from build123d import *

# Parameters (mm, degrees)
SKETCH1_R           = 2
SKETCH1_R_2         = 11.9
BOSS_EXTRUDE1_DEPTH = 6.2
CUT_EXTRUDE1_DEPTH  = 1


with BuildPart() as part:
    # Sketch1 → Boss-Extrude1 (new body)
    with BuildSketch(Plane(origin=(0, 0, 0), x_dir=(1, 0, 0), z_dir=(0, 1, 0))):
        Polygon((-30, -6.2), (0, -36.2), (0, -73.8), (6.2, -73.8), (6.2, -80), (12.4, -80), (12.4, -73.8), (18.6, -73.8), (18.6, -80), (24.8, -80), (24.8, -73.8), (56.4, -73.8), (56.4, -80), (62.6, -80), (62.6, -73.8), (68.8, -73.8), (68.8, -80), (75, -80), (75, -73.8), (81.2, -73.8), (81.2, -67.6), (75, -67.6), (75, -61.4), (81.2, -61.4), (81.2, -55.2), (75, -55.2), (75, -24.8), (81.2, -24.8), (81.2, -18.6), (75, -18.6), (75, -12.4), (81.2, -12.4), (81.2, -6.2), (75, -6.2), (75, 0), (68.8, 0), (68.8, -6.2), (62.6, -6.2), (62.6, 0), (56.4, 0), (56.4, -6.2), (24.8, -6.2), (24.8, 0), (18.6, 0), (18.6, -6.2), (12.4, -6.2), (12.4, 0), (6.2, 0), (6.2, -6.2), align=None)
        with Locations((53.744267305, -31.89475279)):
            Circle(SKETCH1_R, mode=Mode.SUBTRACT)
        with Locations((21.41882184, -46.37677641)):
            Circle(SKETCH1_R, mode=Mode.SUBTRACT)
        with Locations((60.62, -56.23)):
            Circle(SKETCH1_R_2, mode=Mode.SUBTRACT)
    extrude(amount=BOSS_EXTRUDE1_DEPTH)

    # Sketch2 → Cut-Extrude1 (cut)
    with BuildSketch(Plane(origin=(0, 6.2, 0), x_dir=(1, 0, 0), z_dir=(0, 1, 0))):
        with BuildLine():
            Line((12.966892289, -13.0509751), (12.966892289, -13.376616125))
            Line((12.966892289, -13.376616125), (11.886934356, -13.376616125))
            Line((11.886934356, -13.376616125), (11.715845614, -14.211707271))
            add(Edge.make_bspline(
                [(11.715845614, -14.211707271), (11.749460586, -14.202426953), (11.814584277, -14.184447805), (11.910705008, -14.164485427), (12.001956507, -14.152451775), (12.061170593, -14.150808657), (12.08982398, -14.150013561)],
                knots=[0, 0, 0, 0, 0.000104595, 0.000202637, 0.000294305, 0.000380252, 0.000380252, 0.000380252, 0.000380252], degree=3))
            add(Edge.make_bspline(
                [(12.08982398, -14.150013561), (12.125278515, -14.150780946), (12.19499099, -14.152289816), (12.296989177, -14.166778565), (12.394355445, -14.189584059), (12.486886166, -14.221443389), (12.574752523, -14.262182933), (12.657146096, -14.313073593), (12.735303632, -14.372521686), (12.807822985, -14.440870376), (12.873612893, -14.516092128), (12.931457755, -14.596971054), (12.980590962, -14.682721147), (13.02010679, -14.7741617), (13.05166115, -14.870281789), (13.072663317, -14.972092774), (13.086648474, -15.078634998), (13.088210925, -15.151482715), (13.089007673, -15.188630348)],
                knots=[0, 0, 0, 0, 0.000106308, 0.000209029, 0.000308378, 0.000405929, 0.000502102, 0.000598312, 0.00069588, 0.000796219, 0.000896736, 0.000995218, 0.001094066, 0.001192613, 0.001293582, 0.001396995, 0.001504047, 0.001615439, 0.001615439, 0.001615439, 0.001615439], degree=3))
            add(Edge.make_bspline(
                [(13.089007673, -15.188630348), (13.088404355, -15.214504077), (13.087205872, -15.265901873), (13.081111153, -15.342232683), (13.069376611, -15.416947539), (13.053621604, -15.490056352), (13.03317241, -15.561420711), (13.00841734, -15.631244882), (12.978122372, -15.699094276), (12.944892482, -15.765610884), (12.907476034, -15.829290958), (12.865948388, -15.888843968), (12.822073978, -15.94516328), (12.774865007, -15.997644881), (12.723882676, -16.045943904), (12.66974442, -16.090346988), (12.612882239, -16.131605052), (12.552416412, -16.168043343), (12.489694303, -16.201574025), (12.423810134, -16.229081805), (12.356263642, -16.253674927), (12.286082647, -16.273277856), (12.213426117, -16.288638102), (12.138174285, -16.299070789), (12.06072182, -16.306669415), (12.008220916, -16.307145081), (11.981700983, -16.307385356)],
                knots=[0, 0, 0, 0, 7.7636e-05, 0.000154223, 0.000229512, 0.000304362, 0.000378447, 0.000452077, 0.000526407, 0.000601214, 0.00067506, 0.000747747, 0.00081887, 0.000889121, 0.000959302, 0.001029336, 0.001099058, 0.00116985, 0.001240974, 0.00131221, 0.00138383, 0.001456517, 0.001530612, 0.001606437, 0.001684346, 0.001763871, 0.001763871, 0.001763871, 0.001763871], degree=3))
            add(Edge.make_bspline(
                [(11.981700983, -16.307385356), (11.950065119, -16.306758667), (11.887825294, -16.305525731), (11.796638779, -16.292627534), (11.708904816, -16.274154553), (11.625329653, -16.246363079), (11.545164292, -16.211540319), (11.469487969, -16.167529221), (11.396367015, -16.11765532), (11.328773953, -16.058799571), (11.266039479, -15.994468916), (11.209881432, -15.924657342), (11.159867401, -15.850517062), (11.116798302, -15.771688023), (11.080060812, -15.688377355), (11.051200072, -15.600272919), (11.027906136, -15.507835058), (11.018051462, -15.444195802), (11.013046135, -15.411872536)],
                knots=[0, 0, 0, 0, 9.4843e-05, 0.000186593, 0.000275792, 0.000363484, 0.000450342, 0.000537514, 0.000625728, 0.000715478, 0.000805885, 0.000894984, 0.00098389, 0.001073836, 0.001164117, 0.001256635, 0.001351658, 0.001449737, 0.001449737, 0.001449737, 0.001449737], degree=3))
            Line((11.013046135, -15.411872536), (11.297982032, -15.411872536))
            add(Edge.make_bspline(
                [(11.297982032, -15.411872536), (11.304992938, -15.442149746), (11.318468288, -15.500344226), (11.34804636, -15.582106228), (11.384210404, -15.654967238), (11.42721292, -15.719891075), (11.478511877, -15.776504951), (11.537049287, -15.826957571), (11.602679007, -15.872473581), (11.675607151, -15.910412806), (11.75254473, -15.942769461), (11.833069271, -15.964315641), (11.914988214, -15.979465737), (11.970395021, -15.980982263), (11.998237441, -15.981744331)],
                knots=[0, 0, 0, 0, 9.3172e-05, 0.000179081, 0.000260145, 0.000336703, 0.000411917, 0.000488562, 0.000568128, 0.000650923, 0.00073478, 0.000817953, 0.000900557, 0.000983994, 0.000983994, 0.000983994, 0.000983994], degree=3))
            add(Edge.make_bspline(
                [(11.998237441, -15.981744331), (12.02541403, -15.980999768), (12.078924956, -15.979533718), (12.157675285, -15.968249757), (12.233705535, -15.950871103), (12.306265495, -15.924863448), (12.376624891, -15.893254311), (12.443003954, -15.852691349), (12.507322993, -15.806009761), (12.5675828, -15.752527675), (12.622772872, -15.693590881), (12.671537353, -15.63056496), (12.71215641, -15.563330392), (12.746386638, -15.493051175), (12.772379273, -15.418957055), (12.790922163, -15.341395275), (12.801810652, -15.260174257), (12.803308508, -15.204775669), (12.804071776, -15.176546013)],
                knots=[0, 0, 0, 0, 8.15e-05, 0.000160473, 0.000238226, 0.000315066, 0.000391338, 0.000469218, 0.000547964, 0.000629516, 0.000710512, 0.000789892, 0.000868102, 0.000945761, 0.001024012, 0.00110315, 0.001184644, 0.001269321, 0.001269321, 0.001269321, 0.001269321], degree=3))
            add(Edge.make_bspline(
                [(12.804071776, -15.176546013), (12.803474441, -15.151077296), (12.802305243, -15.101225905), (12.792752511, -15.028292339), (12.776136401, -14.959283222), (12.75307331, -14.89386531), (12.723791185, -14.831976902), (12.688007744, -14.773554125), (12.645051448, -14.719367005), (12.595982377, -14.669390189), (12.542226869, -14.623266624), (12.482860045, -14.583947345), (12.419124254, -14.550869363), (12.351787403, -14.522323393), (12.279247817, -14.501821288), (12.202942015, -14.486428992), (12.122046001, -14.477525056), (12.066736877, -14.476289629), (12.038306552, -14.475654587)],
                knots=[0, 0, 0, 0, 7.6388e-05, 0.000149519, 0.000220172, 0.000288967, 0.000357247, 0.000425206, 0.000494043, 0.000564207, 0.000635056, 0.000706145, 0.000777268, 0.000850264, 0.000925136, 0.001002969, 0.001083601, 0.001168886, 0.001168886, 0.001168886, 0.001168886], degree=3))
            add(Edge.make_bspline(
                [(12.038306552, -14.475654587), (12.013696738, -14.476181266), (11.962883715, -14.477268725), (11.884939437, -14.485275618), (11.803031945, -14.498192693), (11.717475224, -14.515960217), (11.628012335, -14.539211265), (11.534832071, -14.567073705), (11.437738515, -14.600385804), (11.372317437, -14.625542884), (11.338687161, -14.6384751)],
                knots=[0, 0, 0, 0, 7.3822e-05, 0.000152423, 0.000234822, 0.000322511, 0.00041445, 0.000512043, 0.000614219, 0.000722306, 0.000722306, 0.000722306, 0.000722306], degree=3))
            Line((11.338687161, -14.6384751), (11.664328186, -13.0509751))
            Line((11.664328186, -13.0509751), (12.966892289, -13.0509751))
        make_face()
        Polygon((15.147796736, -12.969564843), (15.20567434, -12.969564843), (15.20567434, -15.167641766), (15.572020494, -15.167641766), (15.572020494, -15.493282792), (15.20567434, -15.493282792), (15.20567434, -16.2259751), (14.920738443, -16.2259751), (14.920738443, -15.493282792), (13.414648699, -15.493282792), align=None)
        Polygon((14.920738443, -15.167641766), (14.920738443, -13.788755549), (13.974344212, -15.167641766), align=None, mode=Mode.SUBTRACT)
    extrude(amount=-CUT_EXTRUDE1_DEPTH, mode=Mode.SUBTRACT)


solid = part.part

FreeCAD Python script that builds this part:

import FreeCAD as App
import Part
import Sketcher

V = App.Vector
Q = App.Units.Quantity


def add_polygon(sketch, points):
    """Adds a closed chain of lines whose ends are joined by coincident constraints."""
    first, n = sketch.GeometryCount, len(points)
    for a, b in zip(points, points[1:] + points[:1]):
        sketch.addGeometry(Part.LineSegment(App.Vector(*a, 0), App.Vector(*b, 0)), False)
    for i in range(n):
        sketch.addConstraint(Sketcher.Constraint("Coincident", first + i, 2, first + (i + 1) % n, 1))

doc = App.newDocument("Part")
body = doc.addObject("PartDesign::Body", "Body")

# Sketch on XZ plane
sketch1 = body.newObject("Sketcher::SketchObject", "Sketch")
sketch1.AttachmentSupport = (doc.getObject("XZ_Plane"), [""])
sketch1.MapMode = "FlatFace"
add_polygon(sketch1, [(-30, 6.2), (0, 36.2), (0, 73.8), (6.2, 73.8), (6.2, 80), (12.4, 80), (12.4, 73.8), (18.6, 73.8), (18.6, 80), (24.8, 80), (24.8, 73.8), (56.4, 73.8), (56.4, 80), (62.6, 80), (62.6, 73.8), (68.8, 73.8), (68.8, 80), (75, 80), (75, 73.8), (81.2, 73.8), (81.2, 67.6), (75, 67.6), (75, 61.4), (81.2, 61.4), (81.2, 55.2), (75, 55.2), (75, 24.8), (81.2, 24.8), (81.2, 18.6), (75, 18.6), (75, 12.4), (81.2, 12.4), (81.2, 6.2), (75, 6.2), (75, 0), (68.8, 0), (68.8, 6.2), (62.6, 6.2), (62.6, 0), (56.4, 0), (56.4, 6.2), (24.8, 6.2), (24.8, 0), (18.6, 0), (18.6, 6.2), (12.4, 6.2), (12.4, 0), (6.2, 0), (6.2, 6.2)])  # lines 0-48
sketch1.addGeometry(Part.Circle(V(60.6, 56.2, 0), V(0, 0, 1), 11.9), False)  # 49
sketch1.addGeometry(Part.Circle(V(21.4, 46.4, 0), V(0, 0, 1), 2), False)  # 50
sketch1.addGeometry(Part.Circle(V(53.7, 31.9, 0), V(0, 0, 1), 2), False)  # 51
sketch1.addConstraint(Sketcher.Constraint("Vertical", 1))
sketch1.addConstraint(Sketcher.Constraint("Horizontal", 2))
sketch1.addConstraint(Sketcher.Constraint("Vertical", 3))
sketch1.addConstraint(Sketcher.Constraint("Horizontal", 4))
sketch1.addConstraint(Sketcher.Constraint("Vertical", 5))
sketch1.addConstraint(Sketcher.Constraint("Horizontal", 6))
sketch1.addConstraint(Sketcher.Constraint("Vertical", 7))
sketch1.addConstraint(Sketcher.Constraint("Horizontal", 8))
sketch1.addConstraint(Sketcher.Constraint("Vertical", 9))
sketch1.addConstraint(Sketcher.Constraint("Horizontal", 10))
sketch1.addConstraint(Sketcher.Constraint("Vertical", 11))
sketch1.addConstraint(Sketcher.Constraint("Horizontal", 12))
sketch1.addConstraint(Sketcher.Constraint("Vertical", 13))
sketch1.addConstraint(Sketcher.Constraint("Horizontal", 14))
sketch1.addConstraint(Sketcher.Constraint("Vertical", 15))
sketch1.addConstraint(Sketcher.Constraint("Horizontal", 16))
sketch1.addConstraint(Sketcher.Constraint("Vertical", 17))
sketch1.addConstraint(Sketcher.Constraint("Horizontal", 18))
sketch1.addConstraint(Sketcher.Constraint("Vertical", 19))
sketch1.addConstraint(Sketcher.Constraint("Horizontal", 20))
sketch1.addConstraint(Sketcher.Constraint("Vertical", 21))
sketch1.addConstraint(Sketcher.Constraint("Horizontal", 22))
sketch1.addConstraint(Sketcher.Constraint("Vertical", 23))
sketch1.addConstraint(Sketcher.Constraint("Horizontal", 24))
sketch1.addConstraint(Sketcher.Constraint("Vertical", 25))
sketch1.addConstraint(Sketcher.Constraint("Horizontal", 26))
sketch1.addConstraint(Sketcher.Constraint("Vertical", 27))
sketch1.addConstraint(Sketcher.Constraint("Horizontal", 28))
sketch1.addConstraint(Sketcher.Constraint("Vertical", 29))
sketch1.addConstraint(Sketcher.Constraint("Horizontal", 30))
sketch1.addConstraint(Sketcher.Constraint("Vertical", 31))
sketch1.addConstraint(Sketcher.Constraint("Horizontal", 32))
sketch1.addConstraint(Sketcher.Constraint("Vertical", 33))
sketch1.addConstraint(Sketcher.Constraint("Horizontal", 34))
sketch1.addConstraint(Sketcher.Constraint("Vertical", 35))
sketch1.addConstraint(Sketcher.Constraint("Horizontal", 36))
sketch1.addConstraint(Sketcher.Constraint("Vertical", 37))
sketch1.addConstraint(Sketcher.Constraint("Horizontal", 38))
sketch1.addConstraint(Sketcher.Constraint("Vertical", 39))
sketch1.addConstraint(Sketcher.Constraint("Horizontal", 40))
sketch1.addConstraint(Sketcher.Constraint("Vertical", 41))
sketch1.addConstraint(Sketcher.Constraint("Horizontal", 42))
sketch1.addConstraint(Sketcher.Constraint("Vertical", 43))
sketch1.addConstraint(Sketcher.Constraint("Horizontal", 44))
sketch1.addConstraint(Sketcher.Constraint("Vertical", 45))
sketch1.addConstraint(Sketcher.Constraint("Horizontal", 46))
sketch1.addConstraint(Sketcher.Constraint("Vertical", 47))
sketch1.addConstraint(Sketcher.Constraint("Horizontal", 48))
sketch1.addConstraint(Sketcher.Constraint("Equal", 50, 51))
sketch1.addConstraint(Sketcher.Constraint("PointOnObject", 0, 2, -2))
sketch1.addConstraint(Sketcher.Constraint("PointOnObject", 33, 2, -1))
sketch1.addConstraint(Sketcher.Constraint("PointOnObject", 37, 2, -1))
sketch1.addConstraint(Sketcher.Constraint("PointOnObject", 41, 2, -1))
sketch1.addConstraint(Sketcher.Constraint("PointOnObject", 45, 2, -1))
sketch1.addConstraint(Sketcher.Constraint("Horizontal", 2, 2, 5, 2))
sketch1.addConstraint(Sketcher.Constraint("Horizontal", 4, 2, 7, 2))
sketch1.addConstraint(Sketcher.Constraint("Horizontal", 6, 2, 9, 2))
sketch1.addConstraint(Sketcher.Constraint("Horizontal", 8, 2, 11, 2))
sketch1.addConstraint(Sketcher.Constraint("Horizontal", 10, 2, 13, 2))
sketch1.addConstraint(Sketcher.Constraint("Horizontal", 12, 2, 15, 2))
sketch1.addConstraint(Sketcher.Constraint("Horizontal", 14, 2, 17, 2))
sketch1.addConstraint(Sketcher.Constraint("Horizontal", 32, 2, 35, 2))
sketch1.addConstraint(Sketcher.Constraint("Horizontal", 36, 2, 39, 2))
sketch1.addConstraint(Sketcher.Constraint("Horizontal", 40, 2, 43, 2))
sketch1.addConstraint(Sketcher.Constraint("Horizontal", 44, 2, 47, 2))
sketch1.addConstraint(Sketcher.Constraint("Vertical", 17, 2, 20, 2))
sketch1.addConstraint(Sketcher.Constraint("Vertical", 19, 2, 22, 2))
sketch1.addConstraint(Sketcher.Constraint("Vertical", 21, 2, 24, 2))
sketch1.addConstraint(Sketcher.Constraint("Vertical", 23, 2, 26, 2))
sketch1.addConstraint(Sketcher.Constraint("Vertical", 25, 2, 28, 2))
sketch1.addConstraint(Sketcher.Constraint("Vertical", 27, 2, 30, 2))
sketch1.addConstraint(Sketcher.Constraint("Vertical", 29, 2, 32, 2))
sketch1.addConstraint(Sketcher.Constraint("Vertical", 15, 2, 34, 2))
sketch1.addConstraint(Sketcher.Constraint("Vertical", 13, 2, 36, 2))
sketch1.addConstraint(Sketcher.Constraint("Vertical", 11, 2, 38, 2))
sketch1.addConstraint(Sketcher.Constraint("Vertical", 9, 2, 40, 2))
sketch1.addConstraint(Sketcher.Constraint("Vertical", 7, 2, 42, 2))
sketch1.addConstraint(Sketcher.Constraint("Vertical", 5, 2, 44, 2))
sketch1.addConstraint(Sketcher.Constraint("Vertical", 3, 2, 46, 2))
sketch1.addConstraint(Sketcher.Constraint("Equal", 2, 4))
sketch1.addConstraint(Sketcher.Constraint("Equal", 4, 6))
sketch1.addConstraint(Sketcher.Constraint("Equal", 6, 8))
sketch1.addConstraint(Sketcher.Constraint("Equal", 8, 12))
sketch1.addConstraint(Sketcher.Constraint("Equal", 12, 14))
sketch1.addConstraint(Sketcher.Constraint("Equal", 14, 16))
sketch1.addConstraint(Sketcher.Constraint("Equal", 16, 18))
sketch1.addConstraint(Sketcher.Constraint("Equal", 46, 3))
sketch1.addConstraint(Sketcher.Constraint("Equal", 17, 19))
sketch1.addConstraint(Sketcher.Constraint("Equal", 19, 21))
sketch1.addConstraint(Sketcher.Constraint("Equal", 21, 23))
sketch1.addConstraint(Sketcher.Constraint("Equal", 23, 27))
sketch1.addConstraint(Sketcher.Constraint("Equal", 27, 29))
sketch1.addConstraint(Sketcher.Constraint("Equal", 29, 31))
sketch1.addConstraint(Sketcher.Constraint("Equal", 31, 33))
sketch1.addConstraint(Sketcher.Constraint("Diameter", 50, 4.0))
sketch1.addConstraint(Sketcher.Constraint("Diameter", 49, 23.8))
sketch1.addConstraint(Sketcher.Constraint("Angle", 0, Q("45 deg")))
sketch1.addConstraint(Sketcher.Constraint("DistanceX", 2, 1, 2, 2, 6.2))
sketch1.addConstraint(Sketcher.Constraint("DistanceX", 10, 1, 10, 2, 31.6))
sketch1.addConstraint(Sketcher.Constraint("DistanceX", 48, 2, 48, 1, 36.2))
sketch1.addConstraint(Sketcher.Constraint("DistanceY", 1, 1, 1, 2, 37.6))
sketch1.addConstraint(Sketcher.Constraint("DistanceX", -1, 1, 49, 3, 60.62))
sketch1.addConstraint(Sketcher.Constraint("DistanceY", -1, 1, 49, 3, 56.23))
sketch1.addConstraint(Sketcher.Constraint("DistanceX", -1, 1, 50, 3, 21.418822))
sketch1.addConstraint(Sketcher.Constraint("DistanceY", -1, 1, 50, 3, 46.376776))
sketch1.addConstraint(Sketcher.Constraint("DistanceX", -1, 1, 51, 3, 53.744267))
sketch1.addConstraint(Sketcher.Constraint("DistanceY", -1, 1, 51, 3, 31.894753))
pad1 = body.newObject("PartDesign::Pad", "Pad")
pad1.Profile = sketch1
pad1.Length = 6.2
pad1.Reversed = True

# Sketch on XZ plane
sketch2 = body.newObject("Sketcher::SketchObject", "Sketch001")
sketch2.AttachmentSupport = (doc.getObject("XZ_Plane"), [""])
sketch2.MapMode = "FlatFace"
sketch2.AttachmentOffset = App.Placement(V(0, 0, -6.2), App.Rotation())
sketch2.addGeometry(Part.LineSegment(V(12.966892, 13.376616, 0), V(12.966892, 13.050975, 0)), False)  # 0
sketch2.addGeometry(Part.LineSegment(V(12.966892, 13.050975, 0), V(11.664328, 13.050975, 0)), False)  # 1
sketch2.addGeometry(Part.LineSegment(V(11.664328, 13.050975, 0), V(11.338687, 14.638475, 0)), False)  # 2
sketch2.addGeometry(Part.BSplineCurve([V(12.038307, 14.475655, 0), V(12.013697, 14.476181, 0), V(11.962884, 14.477269, 0), V(11.884939, 14.485276, 0), V(11.803032, 14.498193, 0), V(11.717475, 14.51596, 0), V(11.628012, 14.539211, 0), V(11.534832, 14.567074, 0), V(11.437739, 14.600386, 0), V(11.372317, 14.625543, 0), V(11.338687, 14.638475, 0)], [4, 1, 1, 1, 1, 1, 1, 1, 4], [0, 0.000073822, 0.000152423, 0.000234822, 0.000322511, 0.00041445, 0.000512043, 0.000614219, 0.000722306], False, 3, [1, 1, 1, 1, 1, 1, 1, 1, 1, 1, 1], False), False)  # 3
sketch2.addGeometry(Part.BSplineCurve([V(12.804072, 15.176546, 0), V(12.803474, 15.151077, 0), V(12.802305, 15.101226, 0), V(12.792753, 15.028292, 0), V(12.776136, 14.959283, 0), V(12.753073, 14.893865, 0), V(12.723791, 14.831977, 0), V(12.688008, 14.773554, 0), V(12.645051, 14.719367, 0), V(12.595982, 14.66939, 0), V(12.542227, 14.623267, 0), V(12.48286, 14.583947, 0), V(12.419124, 14.550869, 0), V(12.351787, 14.522323, 0), V(12.279248, 14.501821, 0), V(12.202942, 14.486429, 0), V(12.122046, 14.477525, 0), V(12.066737, 14.47629, 0), V(12.038307, 14.475655, 0)], [4, 1, 1, 1, 1, 1, 1, 1, 1, 1, 1, 1, 1, 1, 1, 1, 4], [0, 0.000076388, 0.000149519, 0.000220172, 0.000288967, 0.000357247, 0.000425206, 0.000494043, 0.000564207, 0.000635056, 0.000706145, 0.000777268, 0.000850264, 0.000925136, 0.001002969, 0.001083601, 0.001168886], False, 3, [1, 1, 1, 1, 1, 1, 1, 1, 1, 1, 1, 1, 1, 1, 1, 1, 1, 1, 1], False), False)  # 4
sketch2.addGeometry(Part.BSplineCurve([V(11.998237, 15.981744, 0), V(12.025414, 15.981, 0), V(12.078925, 15.979534, 0), V(12.157675, 15.96825, 0), V(12.233706, 15.950871, 0), V(12.306265, 15.924863, 0), V(12.376625, 15.893254, 0), V(12.443004, 15.852691, 0), V(12.507323, 15.80601, 0), V(12.567583, 15.752528, 0), V(12.622773, 15.693591, 0), V(12.671537, 15.630565, 0), V(12.712156, 15.56333, 0), V(12.746387, 15.493051, 0), V(12.772379, 15.418957, 0), V(12.790922, 15.341395, 0), V(12.801811, 15.260174, 0), V(12.803309, 15.204776, 0), V(12.804072, 15.176546, 0)], [4, 1, 1, 1, 1, 1, 1, 1, 1, 1, 1, 1, 1, 1, 1, 1, 4], [0, 0.0000815, 0.000160473, 0.000238226, 0.000315066, 0.000391338, 0.000469218, 0.000547964, 0.000629516, 0.000710512, 0.000789892, 0.000868102, 0.000945761, 0.001024012, 0.00110315, 0.001184644, 0.001269321], False, 3, [1, 1, 1, 1, 1, 1, 1, 1, 1, 1, 1, 1, 1, 1, 1, 1, 1, 1, 1], False), False)  # 5
sketch2.addGeometry(Part.BSplineCurve([V(11.297982, 15.411873, 0), V(11.304993, 15.44215, 0), V(11.318468, 15.500344, 0), V(11.348046, 15.582106, 0), V(11.38421, 15.654967, 0), V(11.427213, 15.719891, 0), V(11.478512, 15.776505, 0), V(11.537049, 15.826958, 0), V(11.602679, 15.872474, 0), V(11.675607, 15.910413, 0), V(11.752545, 15.942769, 0), V(11.833069, 15.964316, 0), V(11.914988, 15.979466, 0), V(11.970395, 15.980982, 0), V(11.998237, 15.981744, 0)], [4, 1, 1, 1, 1, 1, 1, 1, 1, 1, 1, 1, 4], [0, 0.000093172, 0.000179081, 0.000260145, 0.000336703, 0.000411917, 0.000488562, 0.000568128, 0.000650923, 0.00073478, 0.000817953, 0.000900557, 0.000983994], False, 3, [1, 1, 1, 1, 1, 1, 1, 1, 1, 1, 1, 1, 1, 1, 1], False), False)  # 6
sketch2.addGeometry(Part.LineSegment(V(11.297982, 15.411873, 0), V(11.013046, 15.411873, 0)), False)  # 7
sketch2.addGeometry(Part.BSplineCurve([V(11.981701, 16.307385, 0), V(11.950065, 16.306759, 0), V(11.887825, 16.305526, 0), V(11.796639, 16.292628, 0), V(11.708905, 16.274155, 0), V(11.62533, 16.246363, 0), V(11.545164, 16.21154, 0), V(11.469488, 16.167529, 0), V(11.396367, 16.117655, 0), V(11.328774, 16.0588, 0), V(11.266039, 15.994469, 0), V(11.209881, 15.924657, 0), V(11.159867, 15.850517, 0), V(11.116798, 15.771688, 0), V(11.080061, 15.688377, 0), V(11.0512, 15.600273, 0), V(11.027906, 15.507835, 0), V(11.018051, 15.444196, 0), V(11.013046, 15.411873, 0)], [4, 1, 1, 1, 1, 1, 1, 1, 1, 1, 1, 1, 1, 1, 1, 1, 4], [0, 0.000094843, 0.000186593, 0.000275792, 0.000363484, 0.000450342, 0.000537514, 0.000625728, 0.000715478, 0.000805885, 0.000894984, 0.00098389, 0.001073836, 0.001164117, 0.001256635, 0.001351658, 0.001449737], False, 3, [1, 1, 1, 1, 1, 1, 1, 1, 1, 1, 1, 1, 1, 1, 1, 1, 1, 1, 1], False), False)  # 8
sketch2.addGeometry(Part.BSplineCurve([V(13.089008, 15.18863, 0), V(13.088404, 15.214504, 0), V(13.087206, 15.265902, 0), V(13.081111, 15.342233, 0), V(13.069377, 15.416948, 0), V(13.053622, 15.490056, 0), V(13.033172, 15.561421, 0), V(13.008417, 15.631245, 0), V(12.978122, 15.699094, 0), V(12.944892, 15.765611, 0), V(12.907476, 15.829291, 0), V(12.865948, 15.888844, 0), V(12.822074, 15.945163, 0), V(12.774865, 15.997645, 0), V(12.723883, 16.045944, 0), V(12.669744, 16.090347, 0), V(12.612882, 16.131605, 0), V(12.552416, 16.168043, 0), V(12.489694, 16.201574, 0), V(12.42381, 16.229082, 0), V(12.356264, 16.253675, 0), V(12.286083, 16.273278, 0), V(12.213426, 16.288638, 0), V(12.138174, 16.299071, 0), V(12.060722, 16.306669, 0), V(12.008221, 16.307145, 0), V(11.981701, 16.307385, 0)], [4, 1, 1, 1, 1, 1, 1, 1, 1, 1, 1, 1, 1, 1, 1, 1, 1, 1, 1, 1, 1, 1, 1, 1, 4], [0, 0.000077636, 0.000154223, 0.000229512, 0.000304362, 0.000378447, 0.000452077, 0.000526407, 0.000601214, 0.00067506, 0.000747747, 0.00081887, 0.000889121, 0.000959302, 0.001029336, 0.001099058, 0.00116985, 0.001240974, 0.00131221, 0.00138383, 0.001456517, 0.001530612, 0.001606437, 0.001684346, 0.001763871], False, 3, [1, 1, 1, 1, 1, 1, 1, 1, 1, 1, 1, 1, 1, 1, 1, 1, 1, 1, 1, 1, 1, 1, 1, 1, 1, 1, 1], False), False)  # 9
sketch2.addGeometry(Part.BSplineCurve([V(12.089824, 14.150014, 0), V(12.125279, 14.150781, 0), V(12.194991, 14.15229, 0), V(12.296989, 14.166779, 0), V(12.394355, 14.189584, 0), V(12.486886, 14.221443, 0), V(12.574753, 14.262183, 0), V(12.657146, 14.313074, 0), V(12.735304, 14.372522, 0), V(12.807823, 14.44087, 0), V(12.873613, 14.516092, 0), V(12.931458, 14.596971, 0), V(12.980591, 14.682721, 0), V(13.020107, 14.774162, 0), V(13.051661, 14.870282, 0), V(13.072663, 14.972093, 0), V(13.086648, 15.078635, 0), V(13.088211, 15.151483, 0), V(13.089008, 15.18863, 0)], [4, 1, 1, 1, 1, 1, 1, 1, 1, 1, 1, 1, 1, 1, 1, 1, 4], [0, 0.000106308, 0.000209029, 0.000308378, 0.000405929, 0.000502102, 0.000598312, 0.00069588, 0.000796219, 0.000896736, 0.000995218, 0.001094066, 0.001192613, 0.001293582, 0.001396995, 0.001504047, 0.001615439], False, 3, [1, 1, 1, 1, 1, 1, 1, 1, 1, 1, 1, 1, 1, 1, 1, 1, 1, 1, 1], False), False)  # 10
sketch2.addGeometry(Part.BSplineCurve([V(11.715846, 14.211707, 0), V(11.749461, 14.202427, 0), V(11.814584, 14.184448, 0), V(11.910705, 14.164485, 0), V(12.001957, 14.152452, 0), V(12.061171, 14.150809, 0), V(12.089824, 14.150014, 0)], [4, 1, 1, 1, 4], [0, 0.000104595, 0.000202637, 0.000294305, 0.000380252], False, 3, [1, 1, 1, 1, 1, 1, 1], False), False)  # 11
sketch2.addGeometry(Part.LineSegment(V(11.715846, 14.211707, 0), V(11.886934, 13.376616, 0)), False)  # 12
sketch2.addGeometry(Part.LineSegment(V(11.886934, 13.376616, 0), V(12.966892, 13.376616, 0)), False)  # 13
add_polygon(sketch2, [(15.205674, 12.969565), (15.147797, 12.969565), (13.414649, 15.493283), (14.920738, 15.493283), (14.920738, 16.225975), (15.205674, 16.225975), (15.205674, 15.493283), (15.57202, 15.493283), (15.57202, 15.167642), (15.205674, 15.167642)])  # lines 14-23
add_polygon(sketch2, [(14.920738, 15.167642), (13.974344, 15.167642), (14.920738, 13.788756)])  # lines 24-26
sketch2.addConstraint(Sketcher.Constraint("Block", 3))
sketch2.addConstraint(Sketcher.Constraint("Block", 4))
sketch2.addConstraint(Sketcher.Constraint("Block", 5))
sketch2.addConstraint(Sketcher.Constraint("Block", 6))
sketch2.addConstraint(Sketcher.Constraint("Block", 8))
sketch2.addConstraint(Sketcher.Constraint("Block", 9))
sketch2.addConstraint(Sketcher.Constraint("Block", 10))
sketch2.addConstraint(Sketcher.Constraint("Block", 11))
sketch2.addConstraint(Sketcher.Constraint("Coincident", 0, 2, 1, 1))
sketch2.addConstraint(Sketcher.Constraint("Coincident", 1, 2, 2, 1))
sketch2.addConstraint(Sketcher.Constraint("Coincident", 2, 2, 3, 2))
sketch2.addConstraint(Sketcher.Constraint("Coincident", 6, 1, 7, 1))
sketch2.addConstraint(Sketcher.Constraint("Coincident", 7, 2, 8, 2))
sketch2.addConstraint(Sketcher.Constraint("Coincident", 11, 1, 12, 1))
sketch2.addConstraint(Sketcher.Constraint("Coincident", 12, 2, 13, 1))
sketch2.addConstraint(Sketcher.Constraint("Coincident", 13, 2, 0, 1))
sketch2.addConstraint(Sketcher.Constraint("Vertical", 0))
sketch2.addConstraint(Sketcher.Constraint("Horizontal", 1))
sketch2.addConstraint(Sketcher.Constraint("Horizontal", 13))
sketch2.addConstraint(Sketcher.Constraint("Horizontal", 14))
sketch2.addConstraint(Sketcher.Constraint("Horizontal", 16))
sketch2.addConstraint(Sketcher.Constraint("Vertical", 17))
sketch2.addConstraint(Sketcher.Constraint("Horizontal", 18))
sketch2.addConstraint(Sketcher.Constraint("Vertical", 19))
sketch2.addConstraint(Sketcher.Constraint("Horizontal", 20))
sketch2.addConstraint(Sketcher.Constraint("Vertical", 21))
sketch2.addConstraint(Sketcher.Constraint("Horizontal", 22))
sketch2.addConstraint(Sketcher.Constraint("Vertical", 23))
sketch2.addConstraint(Sketcher.Constraint("Horizontal", 24))
sketch2.addConstraint(Sketcher.Constraint("Vertical", 26))
sketch2.addConstraint(Sketcher.Constraint("DistanceY", 0, 2, 17, 2, 3.175))
sketch2.addConstraint(Sketcher.Constraint("DistanceX", 16, 1, 16, 2, 1.50609))
sketch2.addConstraint(Sketcher.Constraint("DistanceY", 0, 2, 0, 1, 0.325641))
sketch2.addConstraint(Sketcher.Constraint("DistanceY", 21, 2, 21, 1, 0.325641))
sketch2.addConstraint(Sketcher.Constraint("DistanceY", 1, 2, 2, 2, 1.5875))
sketch2.addConstraint(Sketcher.Constraint("Distance", 15, 3.061528))
sketch2.addConstraint(Sketcher.Constraint("Distance", 25, 1.67242))
sketch2.addConstraint(Sketcher.Constraint("DistanceX", 1, 2, 1, 1, 1.302564))
sketch2.addConstraint(Sketcher.Constraint("DistanceX", 13, 1, 13, 2, 1.079958))
sketch2.addConstraint(Sketcher.Constraint("DistanceX", 14, 2, 14, 1, 0.057878))
sketch2.addConstraint(Sketcher.Constraint("DistanceX", 18, 1, 18, 2, 0.284936))
sketch2.addConstraint(Sketcher.Constraint("DistanceX", 20, 1, 20, 2, 0.366346))
sketch2.addConstraint(Sketcher.Constraint("DistanceX", 22, 2, 22, 1, 0.366346))
sketch2.addConstraint(Sketcher.Constraint("DistanceX", 24, 2, 24, 1, 0.946394))
sketch2.addConstraint(Sketcher.Constraint("DistanceY", 17, 1, 17, 2, 0.732692))
sketch2.addConstraint(Sketcher.Constraint("DistanceY", 19, 2, 19, 1, 0.732692))
sketch2.addConstraint(Sketcher.Constraint("DistanceX", -1, 1, 1, 2, 11.664328))
sketch2.addConstraint(Sketcher.Constraint("DistanceX", -1, 1, 15, 2, 13.414649))
sketch2.addConstraint(Sketcher.Constraint("DistanceY", -1, 1, 24, 2, 15.167642))
sketch2.addConstraint(Sketcher.Constraint("DistanceX", -1, 1, 25, 2, 14.920738))
pocket1 = body.newObject("PartDesign::Pocket", "Pocket")
pocket1.Profile = sketch2
pocket1.Length = 1
pocket1.Reversed = True

doc.recompute()
